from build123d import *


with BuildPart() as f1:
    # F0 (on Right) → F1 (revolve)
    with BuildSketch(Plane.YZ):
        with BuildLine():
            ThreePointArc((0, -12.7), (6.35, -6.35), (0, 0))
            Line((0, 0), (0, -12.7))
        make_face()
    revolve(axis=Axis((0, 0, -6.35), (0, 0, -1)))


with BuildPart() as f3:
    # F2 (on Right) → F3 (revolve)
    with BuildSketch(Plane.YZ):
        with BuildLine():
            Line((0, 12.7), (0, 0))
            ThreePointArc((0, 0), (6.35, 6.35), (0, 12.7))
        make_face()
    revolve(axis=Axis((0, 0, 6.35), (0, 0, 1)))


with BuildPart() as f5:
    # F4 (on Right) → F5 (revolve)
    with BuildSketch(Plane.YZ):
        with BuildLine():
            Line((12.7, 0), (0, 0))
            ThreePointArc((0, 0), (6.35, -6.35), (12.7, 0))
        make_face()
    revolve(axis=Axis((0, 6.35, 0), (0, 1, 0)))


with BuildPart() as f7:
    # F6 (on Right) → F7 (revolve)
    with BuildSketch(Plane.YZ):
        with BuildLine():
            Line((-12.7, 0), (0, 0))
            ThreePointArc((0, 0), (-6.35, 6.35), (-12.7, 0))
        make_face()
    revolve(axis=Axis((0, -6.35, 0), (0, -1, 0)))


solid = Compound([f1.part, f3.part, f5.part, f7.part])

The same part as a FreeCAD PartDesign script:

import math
import FreeCAD as App
import Part
import Sketcher
Q = App.Units.Quantity

doc = App.newDocument("Part")
body = doc.addObject("PartDesign::Body", "Body")

# Sketch on YZ plane
sketch1 = body.newObject("Sketcher::SketchObject", "Sketch")
sketch1.AttachmentSupport = (doc.getObject("YZ_Plane"), [""])
sketch1.MapMode = "FlatFace"
sketch1.addGeometry(Part.ArcOfCircle(Part.Circle(App.Vector(0, -6, 0), App.Vector(0, 0, 1), 6), math.radians(-90), math.radians(90)), False)
sketch1.addGeometry(Part.LineSegment(App.Vector(0, 0, 0), App.Vector(0, -13, 0)), False)
sketch1.addConstraint(Sketcher.Constraint("Coincident", 0, 1, 1, 2))
sketch1.addConstraint(Sketcher.Constraint("Coincident", 1, 1, 0, 2))
sketch1.addConstraint(Sketcher.Constraint("Vertical", 1))
sketch1.addConstraint(Sketcher.Constraint("Coincident", 1, 1, -1, 1))
sketch1.addConstraint(Sketcher.Constraint("PointOnObject", 0, 3, -2))
sketch1.addConstraint(Sketcher.Constraint("Radius", 0, Q("0.25 in")))
revolution = body.newObject("PartDesign::Revolution", "Revolution")
revolution.Profile = sketch1
revolution.ReferenceAxis = (sketch1, ["V_Axis"])
revolution.Angle = 360
body2 = doc.addObject("PartDesign::Body", "Body001")

# Sketch on YZ plane
sketch2 = body2.newObject("Sketcher::SketchObject", "Sketch001")
sketch2.AttachmentSupport = (doc.getObject("YZ_Plane001"), [""])
sketch2.MapMode = "FlatFace"
sketch2.addGeometry(Part.LineSegment(App.Vector(0, 13, 0), App.Vector(0, 0, 0)), False)
sketch2.addGeometry(Part.ArcOfCircle(Part.Circle(App.Vector(0, 6, 0), App.Vector(0, 0, 1), 6), math.radians(-90), math.radians(90)), False)
sketch2.addConstraint(Sketcher.Constraint("Coincident", 0, 1, 1, 2))
sketch2.addConstraint(Sketcher.Constraint("Coincident", 1, 1, 0, 2))
sketch2.addConstraint(Sketcher.Constraint("Vertical", 0))
sketch2.addConstraint(Sketcher.Constraint("Coincident", 1, 1, -1, 1))
sketch2.addConstraint(Sketcher.Constraint("PointOnObject", 1, 3, -2))
sketch2.addConstraint(Sketcher.Constraint("Radius", 1, Q("0.25 in")))
revolution2 = body2.newObject("PartDesign::Revolution", "Revolution001")
revolution2.Profile = sketch2
revolution2.ReferenceAxis = (sketch2, ["V_Axis"])
revolution2.Angle = 360
body3 = doc.addObject("PartDesign::Body", "Body002")

# Sketch on YZ plane
sketch3 = body3.newObject("Sketcher::SketchObject", "Sketch002")
sketch3.AttachmentSupport = (doc.getObject("YZ_Plane002"), [""])
sketch3.MapMode = "FlatFace"
sketch3.addGeometry(Part.LineSegment(App.Vector(13, 0, 0), App.Vector(0, 0, 0)), False)
sketch3.addGeometry(Part.ArcOfCircle(Part.Circle(App.Vector(6, 0, 0), App.Vector(0, 0, 1), 6), math.radians(180), math.radians(360)), False)
sketch3.addConstraint(Sketcher.Constraint("Coincident", 0, 1, 1, 2))
sketch3.addConstraint(Sketcher.Constraint("Coincident", 1, 1, 0, 2))
sketch3.addConstraint(Sketcher.Constraint("Horizontal", 0))
sketch3.addConstraint(Sketcher.Constraint("Coincident", 1, 1, -1, 1))
sketch3.addConstraint(Sketcher.Constraint("PointOnObject", 1, 3, -1))
sketch3.addConstraint(Sketcher.Constraint("Radius", 1, Q("0.25 in")))
revolution3 = body3.newObject("PartDesign::Revolution", "Revolution002")
revolution3.Profile = sketch3
revolution3.ReferenceAxis = (sketch3, ["H_Axis"])
revolution3.Angle = 360
body4 = doc.addObject("PartDesign::Body", "Body003")

# Sketch on YZ plane
sketch4 = body4.newObject("Sketcher::SketchObject", "Sketch003")
sketch4.AttachmentSupport = (doc.getObject("YZ_Plane003"), [""])
sketch4.MapMode = "FlatFace"
sketch4.addGeometry(Part.LineSegment(App.Vector(-13, 0, 0), App.Vector(0, 0, 0)), False)
sketch4.addGeometry(Part.ArcOfCircle(Part.Circle(App.Vector(-6, 0, 0), App.Vector(0, 0, 1), 6), math.radians(0), math.radians(180)), False)
sketch4.addConstraint(Sketcher.Constraint("Coincident", 0, 1, 1, 2))
sketch4.addConstraint(Sketcher.Constraint("Coincident", 1, 1, 0, 2))
sketch4.addConstraint(Sketcher.Constraint("Horizontal", 0))
sketch4.addConstraint(Sketcher.Constraint("Coincident", 1, 1, -1, 1))
sketch4.addConstraint(Sketcher.Constraint("PointOnObject", 1, 3, -1))
sketch4.addConstraint(Sketcher.Constraint("Radius", 1, Q("0.25 in")))
revolution4 = body4.newObject("PartDesign::Revolution", "Revolution003")
revolution4.Profile = sketch4
revolution4.ReferenceAxis = (sketch4, ["H_Axis"])
revolution4.Angle = 360

doc.recompute()
